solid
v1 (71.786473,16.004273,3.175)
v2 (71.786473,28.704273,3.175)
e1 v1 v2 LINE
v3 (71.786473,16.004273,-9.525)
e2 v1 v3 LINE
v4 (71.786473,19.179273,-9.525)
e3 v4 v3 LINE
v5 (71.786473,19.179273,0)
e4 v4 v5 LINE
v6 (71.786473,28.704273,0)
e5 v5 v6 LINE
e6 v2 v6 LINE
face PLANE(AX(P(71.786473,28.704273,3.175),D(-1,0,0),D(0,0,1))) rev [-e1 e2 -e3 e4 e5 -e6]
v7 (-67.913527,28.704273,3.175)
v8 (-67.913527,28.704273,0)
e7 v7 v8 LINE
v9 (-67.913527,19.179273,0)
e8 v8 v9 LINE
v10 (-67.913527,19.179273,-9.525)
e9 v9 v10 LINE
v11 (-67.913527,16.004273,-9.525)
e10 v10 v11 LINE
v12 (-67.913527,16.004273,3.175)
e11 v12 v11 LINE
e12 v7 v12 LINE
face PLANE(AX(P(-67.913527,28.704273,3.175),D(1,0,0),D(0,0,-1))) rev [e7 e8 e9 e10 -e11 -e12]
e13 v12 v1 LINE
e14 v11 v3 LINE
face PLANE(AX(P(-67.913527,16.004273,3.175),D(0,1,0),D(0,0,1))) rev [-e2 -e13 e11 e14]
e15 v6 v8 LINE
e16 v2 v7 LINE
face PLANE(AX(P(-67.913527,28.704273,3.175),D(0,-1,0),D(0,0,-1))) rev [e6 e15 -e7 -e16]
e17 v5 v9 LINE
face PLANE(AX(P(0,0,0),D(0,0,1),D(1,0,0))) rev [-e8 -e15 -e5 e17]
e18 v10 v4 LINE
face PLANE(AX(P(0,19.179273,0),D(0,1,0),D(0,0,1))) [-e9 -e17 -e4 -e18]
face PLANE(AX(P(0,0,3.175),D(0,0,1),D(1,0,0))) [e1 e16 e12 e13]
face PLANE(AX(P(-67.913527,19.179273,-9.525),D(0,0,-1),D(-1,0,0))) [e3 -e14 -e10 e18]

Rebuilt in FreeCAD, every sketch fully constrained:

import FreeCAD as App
import Part
import Sketcher

V = App.Vector
Q = App.Units.Quantity

doc = App.newDocument("Part")
body = doc.addObject("PartDesign::Body", "Body")

# Sketch on XY plane
sketch1 = body.newObject("Sketcher::SketchObject", "Sketch")
sketch1.AttachmentSupport = (doc.getObject("XY_Plane"), [""])
sketch1.MapMode = "FlatFace"
sketch1.addGeometry([
    Part.LineSegment(V(-68, 29, 0), V(-68, 16, 0)),
    Part.LineSegment(V(-68, 16, 0), V(72, 16, 0)),
    Part.LineSegment(V(72, 16, 0), V(72, 29, 0)),
    Part.LineSegment(V(72, 29, 0), V(-68, 29, 0)),
], False)
sketch1.addConstraint([
    Sketcher.Constraint("Coincident", 0, 2, 1, 1),
    Sketcher.Constraint("Coincident", 1, 2, 2, 1),
    Sketcher.Constraint("Coincident", 2, 2, 3, 1),
    Sketcher.Constraint("Coincident", 3, 2, 0, 1),
    Sketcher.Constraint("Vertical", 0),
    Sketcher.Constraint("Horizontal", 1),
    Sketcher.Constraint("Vertical", 2),
    Sketcher.Constraint("Horizontal", 3),
    Sketcher.Constraint("DistanceX", 1, 1, 1, 2, Q("5.5 in")),
    Sketcher.Constraint("DistanceY", 0, 2, 0, 1, Q("0.5 in")),
    Sketcher.Constraint("DistanceX", 0, 2, -1, 1, 67.913527),
    Sketcher.Constraint("DistanceY", -1, 1, 0, 2, 16.004273),
])
pad1 = body.newObject("PartDesign::Pad", "Pad")
pad1.Profile = sketch1
pad1.Length = Q("0.125 in")

# Sketch on XZ plane
sketch2 = body.newObject("Sketcher::SketchObject", "Sketch001")
sketch2.AttachmentSupport = (doc.getObject("XZ_Plane"), [""])
sketch2.MapMode = "FlatFace"
sketch2.AttachmentOffset = App.Placement(V(0, 0, -16.004273), App.Rotation())
sketch2.addGeometry([
    Part.LineSegment(V(72, -10, 0), V(72, 0, 0)),
    Part.LineSegment(V(72, 0, 0), V(-68, 0, 0)),
    Part.LineSegment(V(-68, 0, 0), V(-68, -10, 0)),
    Part.LineSegment(V(-68, -10, 0), V(72, -10, 0)),
], False)
sketch2.addConstraint([
    Sketcher.Constraint("Coincident", 0, 2, 1, 1),
    Sketcher.Constraint("Coincident", 1, 2, 2, 1),
    Sketcher.Constraint("Coincident", 2, 2, 3, 1),
    Sketcher.Constraint("Coincident", 3, 2, 0, 1),
    Sketcher.Constraint("Vertical", 0),
    Sketcher.Constraint("Horizontal", 1),
    Sketcher.Constraint("Vertical", 2),
    Sketcher.Constraint("Horizontal", 3),
    Sketcher.Constraint("PointOnObject", 0, 2, -1),
    Sketcher.Constraint("DistanceX", 1, 2, 1, 1, Q("5.5 in")),
    Sketcher.Constraint("DistanceY", 0, 1, 0, 2, Q("0.375 in")),
    Sketcher.Constraint("DistanceX", -1, 1, 0, 2, 71.786473),
])
pad2 = body.newObject("PartDesign::Pad", "Pad001")
pad2.Profile = sketch2
pad2.Length = Q("0.125 in")
pad2.Reversed = True

doc.recompute()
